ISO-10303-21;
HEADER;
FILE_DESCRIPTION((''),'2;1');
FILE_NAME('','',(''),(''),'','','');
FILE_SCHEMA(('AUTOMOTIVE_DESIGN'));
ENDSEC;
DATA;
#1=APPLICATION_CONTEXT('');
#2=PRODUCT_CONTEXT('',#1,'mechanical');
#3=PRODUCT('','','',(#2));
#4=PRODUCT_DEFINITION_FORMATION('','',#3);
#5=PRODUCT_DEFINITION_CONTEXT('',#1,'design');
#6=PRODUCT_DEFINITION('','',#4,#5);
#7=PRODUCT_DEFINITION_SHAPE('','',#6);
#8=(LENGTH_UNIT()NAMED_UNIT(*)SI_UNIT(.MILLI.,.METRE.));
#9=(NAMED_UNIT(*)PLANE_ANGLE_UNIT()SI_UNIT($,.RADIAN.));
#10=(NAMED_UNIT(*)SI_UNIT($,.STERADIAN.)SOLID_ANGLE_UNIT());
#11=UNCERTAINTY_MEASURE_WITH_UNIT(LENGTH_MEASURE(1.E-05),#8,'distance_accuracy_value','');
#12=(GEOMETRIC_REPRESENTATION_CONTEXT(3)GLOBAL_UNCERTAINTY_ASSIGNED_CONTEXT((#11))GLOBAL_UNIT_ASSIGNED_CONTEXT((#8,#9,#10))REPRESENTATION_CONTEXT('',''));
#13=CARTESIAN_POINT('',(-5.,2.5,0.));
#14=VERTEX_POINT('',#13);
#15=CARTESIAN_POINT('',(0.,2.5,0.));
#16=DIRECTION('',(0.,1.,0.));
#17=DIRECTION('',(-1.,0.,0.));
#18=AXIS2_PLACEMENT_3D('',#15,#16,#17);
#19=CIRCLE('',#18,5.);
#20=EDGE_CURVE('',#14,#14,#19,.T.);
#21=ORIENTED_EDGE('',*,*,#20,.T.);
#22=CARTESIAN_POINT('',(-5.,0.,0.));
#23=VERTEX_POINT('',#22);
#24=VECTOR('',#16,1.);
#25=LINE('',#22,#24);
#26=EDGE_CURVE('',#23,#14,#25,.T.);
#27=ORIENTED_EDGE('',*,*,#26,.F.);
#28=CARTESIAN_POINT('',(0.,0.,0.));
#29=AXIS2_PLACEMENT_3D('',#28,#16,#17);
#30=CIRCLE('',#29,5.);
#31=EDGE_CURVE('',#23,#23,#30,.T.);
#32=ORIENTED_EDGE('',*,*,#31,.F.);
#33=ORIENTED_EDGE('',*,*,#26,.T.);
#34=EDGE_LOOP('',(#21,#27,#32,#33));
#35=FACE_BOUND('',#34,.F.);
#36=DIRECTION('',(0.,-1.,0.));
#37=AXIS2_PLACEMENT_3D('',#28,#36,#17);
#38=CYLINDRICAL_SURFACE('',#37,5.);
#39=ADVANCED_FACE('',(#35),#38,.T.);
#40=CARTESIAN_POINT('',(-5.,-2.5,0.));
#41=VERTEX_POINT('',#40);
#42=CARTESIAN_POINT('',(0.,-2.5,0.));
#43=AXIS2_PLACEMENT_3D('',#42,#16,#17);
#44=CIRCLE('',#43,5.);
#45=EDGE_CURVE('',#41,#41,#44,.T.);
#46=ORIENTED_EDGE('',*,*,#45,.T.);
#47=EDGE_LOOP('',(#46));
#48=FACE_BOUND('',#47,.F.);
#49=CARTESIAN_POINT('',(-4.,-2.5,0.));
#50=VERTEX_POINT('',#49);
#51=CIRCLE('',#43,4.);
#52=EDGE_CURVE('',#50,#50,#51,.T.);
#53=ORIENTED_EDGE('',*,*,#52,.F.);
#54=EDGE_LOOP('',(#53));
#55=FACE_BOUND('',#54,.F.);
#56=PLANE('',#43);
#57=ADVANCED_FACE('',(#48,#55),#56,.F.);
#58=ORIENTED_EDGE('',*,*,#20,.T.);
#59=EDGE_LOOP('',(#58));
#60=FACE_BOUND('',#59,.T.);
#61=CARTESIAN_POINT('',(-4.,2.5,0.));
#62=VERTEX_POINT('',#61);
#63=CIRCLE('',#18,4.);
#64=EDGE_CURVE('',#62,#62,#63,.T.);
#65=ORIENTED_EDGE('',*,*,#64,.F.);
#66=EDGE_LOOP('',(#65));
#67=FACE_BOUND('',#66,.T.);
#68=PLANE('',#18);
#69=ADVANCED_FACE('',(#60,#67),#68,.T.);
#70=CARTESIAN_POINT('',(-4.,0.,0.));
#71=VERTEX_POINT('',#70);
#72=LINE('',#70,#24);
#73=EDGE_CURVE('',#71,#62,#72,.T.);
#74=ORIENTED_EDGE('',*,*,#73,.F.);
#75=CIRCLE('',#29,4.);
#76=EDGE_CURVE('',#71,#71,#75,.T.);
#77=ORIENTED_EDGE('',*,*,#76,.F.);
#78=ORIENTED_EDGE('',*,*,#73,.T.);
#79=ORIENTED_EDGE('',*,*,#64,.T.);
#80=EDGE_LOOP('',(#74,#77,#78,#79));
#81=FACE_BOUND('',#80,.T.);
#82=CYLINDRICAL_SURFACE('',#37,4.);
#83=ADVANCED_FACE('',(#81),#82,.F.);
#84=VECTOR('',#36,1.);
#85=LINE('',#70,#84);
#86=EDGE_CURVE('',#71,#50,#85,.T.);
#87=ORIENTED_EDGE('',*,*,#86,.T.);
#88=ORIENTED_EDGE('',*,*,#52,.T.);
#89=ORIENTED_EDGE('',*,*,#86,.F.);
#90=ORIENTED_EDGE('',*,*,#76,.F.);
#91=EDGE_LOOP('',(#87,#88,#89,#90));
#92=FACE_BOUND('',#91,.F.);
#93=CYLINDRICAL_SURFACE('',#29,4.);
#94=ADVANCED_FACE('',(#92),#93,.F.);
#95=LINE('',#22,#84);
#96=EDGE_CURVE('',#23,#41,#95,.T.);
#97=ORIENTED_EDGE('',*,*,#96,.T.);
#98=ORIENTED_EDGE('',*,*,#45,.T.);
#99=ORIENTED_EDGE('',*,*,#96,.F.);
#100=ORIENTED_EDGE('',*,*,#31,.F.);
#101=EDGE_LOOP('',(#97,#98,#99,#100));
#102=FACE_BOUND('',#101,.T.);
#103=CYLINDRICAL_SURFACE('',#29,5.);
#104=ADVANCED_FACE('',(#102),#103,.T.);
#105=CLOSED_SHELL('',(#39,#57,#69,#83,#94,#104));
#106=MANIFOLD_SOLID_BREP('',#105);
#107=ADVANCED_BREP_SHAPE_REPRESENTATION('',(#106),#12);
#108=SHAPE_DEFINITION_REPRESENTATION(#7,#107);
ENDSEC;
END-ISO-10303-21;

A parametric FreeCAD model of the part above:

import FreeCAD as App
import Part
import Sketcher

V = App.Vector
Q = App.Units.Quantity

doc = App.newDocument("Part")
body = doc.addObject("PartDesign::Body", "Body")

# Sketch on XZ plane
sketch1 = doc.addObject("Sketcher::SketchObject", "Sketch")
body.addObject(sketch1)
sketch1.AttachmentSupport = (doc.XZ_Plane, [""])
sketch1.MapMode = "FlatFace"
sketch1.addGeometry(Part.Circle(V(0, 0, 0), V(0, 0, 1), 5), False)
sketch1.addGeometry(Part.Circle(V(0, 0, 0), V(0, 0, 1), 4), False)
sketch1.addConstraint(Sketcher.Constraint("Coincident", 0, 3, -1, 1))
sketch1.addConstraint(Sketcher.Constraint("Coincident", 1, 3, -1, 1))
sketch1.addConstraint(Sketcher.Constraint("Diameter", 0, Q("10 mm")))
sketch1.addConstraint(Sketcher.Constraint("Diameter", 1, Q("8 mm")))
pad1 = doc.addObject("PartDesign::Pad", "Pad")
body.addObject(pad1)
pad1.Profile = sketch1
pad1.Length = 5
pad1.Midplane = True

doc.recompute()
